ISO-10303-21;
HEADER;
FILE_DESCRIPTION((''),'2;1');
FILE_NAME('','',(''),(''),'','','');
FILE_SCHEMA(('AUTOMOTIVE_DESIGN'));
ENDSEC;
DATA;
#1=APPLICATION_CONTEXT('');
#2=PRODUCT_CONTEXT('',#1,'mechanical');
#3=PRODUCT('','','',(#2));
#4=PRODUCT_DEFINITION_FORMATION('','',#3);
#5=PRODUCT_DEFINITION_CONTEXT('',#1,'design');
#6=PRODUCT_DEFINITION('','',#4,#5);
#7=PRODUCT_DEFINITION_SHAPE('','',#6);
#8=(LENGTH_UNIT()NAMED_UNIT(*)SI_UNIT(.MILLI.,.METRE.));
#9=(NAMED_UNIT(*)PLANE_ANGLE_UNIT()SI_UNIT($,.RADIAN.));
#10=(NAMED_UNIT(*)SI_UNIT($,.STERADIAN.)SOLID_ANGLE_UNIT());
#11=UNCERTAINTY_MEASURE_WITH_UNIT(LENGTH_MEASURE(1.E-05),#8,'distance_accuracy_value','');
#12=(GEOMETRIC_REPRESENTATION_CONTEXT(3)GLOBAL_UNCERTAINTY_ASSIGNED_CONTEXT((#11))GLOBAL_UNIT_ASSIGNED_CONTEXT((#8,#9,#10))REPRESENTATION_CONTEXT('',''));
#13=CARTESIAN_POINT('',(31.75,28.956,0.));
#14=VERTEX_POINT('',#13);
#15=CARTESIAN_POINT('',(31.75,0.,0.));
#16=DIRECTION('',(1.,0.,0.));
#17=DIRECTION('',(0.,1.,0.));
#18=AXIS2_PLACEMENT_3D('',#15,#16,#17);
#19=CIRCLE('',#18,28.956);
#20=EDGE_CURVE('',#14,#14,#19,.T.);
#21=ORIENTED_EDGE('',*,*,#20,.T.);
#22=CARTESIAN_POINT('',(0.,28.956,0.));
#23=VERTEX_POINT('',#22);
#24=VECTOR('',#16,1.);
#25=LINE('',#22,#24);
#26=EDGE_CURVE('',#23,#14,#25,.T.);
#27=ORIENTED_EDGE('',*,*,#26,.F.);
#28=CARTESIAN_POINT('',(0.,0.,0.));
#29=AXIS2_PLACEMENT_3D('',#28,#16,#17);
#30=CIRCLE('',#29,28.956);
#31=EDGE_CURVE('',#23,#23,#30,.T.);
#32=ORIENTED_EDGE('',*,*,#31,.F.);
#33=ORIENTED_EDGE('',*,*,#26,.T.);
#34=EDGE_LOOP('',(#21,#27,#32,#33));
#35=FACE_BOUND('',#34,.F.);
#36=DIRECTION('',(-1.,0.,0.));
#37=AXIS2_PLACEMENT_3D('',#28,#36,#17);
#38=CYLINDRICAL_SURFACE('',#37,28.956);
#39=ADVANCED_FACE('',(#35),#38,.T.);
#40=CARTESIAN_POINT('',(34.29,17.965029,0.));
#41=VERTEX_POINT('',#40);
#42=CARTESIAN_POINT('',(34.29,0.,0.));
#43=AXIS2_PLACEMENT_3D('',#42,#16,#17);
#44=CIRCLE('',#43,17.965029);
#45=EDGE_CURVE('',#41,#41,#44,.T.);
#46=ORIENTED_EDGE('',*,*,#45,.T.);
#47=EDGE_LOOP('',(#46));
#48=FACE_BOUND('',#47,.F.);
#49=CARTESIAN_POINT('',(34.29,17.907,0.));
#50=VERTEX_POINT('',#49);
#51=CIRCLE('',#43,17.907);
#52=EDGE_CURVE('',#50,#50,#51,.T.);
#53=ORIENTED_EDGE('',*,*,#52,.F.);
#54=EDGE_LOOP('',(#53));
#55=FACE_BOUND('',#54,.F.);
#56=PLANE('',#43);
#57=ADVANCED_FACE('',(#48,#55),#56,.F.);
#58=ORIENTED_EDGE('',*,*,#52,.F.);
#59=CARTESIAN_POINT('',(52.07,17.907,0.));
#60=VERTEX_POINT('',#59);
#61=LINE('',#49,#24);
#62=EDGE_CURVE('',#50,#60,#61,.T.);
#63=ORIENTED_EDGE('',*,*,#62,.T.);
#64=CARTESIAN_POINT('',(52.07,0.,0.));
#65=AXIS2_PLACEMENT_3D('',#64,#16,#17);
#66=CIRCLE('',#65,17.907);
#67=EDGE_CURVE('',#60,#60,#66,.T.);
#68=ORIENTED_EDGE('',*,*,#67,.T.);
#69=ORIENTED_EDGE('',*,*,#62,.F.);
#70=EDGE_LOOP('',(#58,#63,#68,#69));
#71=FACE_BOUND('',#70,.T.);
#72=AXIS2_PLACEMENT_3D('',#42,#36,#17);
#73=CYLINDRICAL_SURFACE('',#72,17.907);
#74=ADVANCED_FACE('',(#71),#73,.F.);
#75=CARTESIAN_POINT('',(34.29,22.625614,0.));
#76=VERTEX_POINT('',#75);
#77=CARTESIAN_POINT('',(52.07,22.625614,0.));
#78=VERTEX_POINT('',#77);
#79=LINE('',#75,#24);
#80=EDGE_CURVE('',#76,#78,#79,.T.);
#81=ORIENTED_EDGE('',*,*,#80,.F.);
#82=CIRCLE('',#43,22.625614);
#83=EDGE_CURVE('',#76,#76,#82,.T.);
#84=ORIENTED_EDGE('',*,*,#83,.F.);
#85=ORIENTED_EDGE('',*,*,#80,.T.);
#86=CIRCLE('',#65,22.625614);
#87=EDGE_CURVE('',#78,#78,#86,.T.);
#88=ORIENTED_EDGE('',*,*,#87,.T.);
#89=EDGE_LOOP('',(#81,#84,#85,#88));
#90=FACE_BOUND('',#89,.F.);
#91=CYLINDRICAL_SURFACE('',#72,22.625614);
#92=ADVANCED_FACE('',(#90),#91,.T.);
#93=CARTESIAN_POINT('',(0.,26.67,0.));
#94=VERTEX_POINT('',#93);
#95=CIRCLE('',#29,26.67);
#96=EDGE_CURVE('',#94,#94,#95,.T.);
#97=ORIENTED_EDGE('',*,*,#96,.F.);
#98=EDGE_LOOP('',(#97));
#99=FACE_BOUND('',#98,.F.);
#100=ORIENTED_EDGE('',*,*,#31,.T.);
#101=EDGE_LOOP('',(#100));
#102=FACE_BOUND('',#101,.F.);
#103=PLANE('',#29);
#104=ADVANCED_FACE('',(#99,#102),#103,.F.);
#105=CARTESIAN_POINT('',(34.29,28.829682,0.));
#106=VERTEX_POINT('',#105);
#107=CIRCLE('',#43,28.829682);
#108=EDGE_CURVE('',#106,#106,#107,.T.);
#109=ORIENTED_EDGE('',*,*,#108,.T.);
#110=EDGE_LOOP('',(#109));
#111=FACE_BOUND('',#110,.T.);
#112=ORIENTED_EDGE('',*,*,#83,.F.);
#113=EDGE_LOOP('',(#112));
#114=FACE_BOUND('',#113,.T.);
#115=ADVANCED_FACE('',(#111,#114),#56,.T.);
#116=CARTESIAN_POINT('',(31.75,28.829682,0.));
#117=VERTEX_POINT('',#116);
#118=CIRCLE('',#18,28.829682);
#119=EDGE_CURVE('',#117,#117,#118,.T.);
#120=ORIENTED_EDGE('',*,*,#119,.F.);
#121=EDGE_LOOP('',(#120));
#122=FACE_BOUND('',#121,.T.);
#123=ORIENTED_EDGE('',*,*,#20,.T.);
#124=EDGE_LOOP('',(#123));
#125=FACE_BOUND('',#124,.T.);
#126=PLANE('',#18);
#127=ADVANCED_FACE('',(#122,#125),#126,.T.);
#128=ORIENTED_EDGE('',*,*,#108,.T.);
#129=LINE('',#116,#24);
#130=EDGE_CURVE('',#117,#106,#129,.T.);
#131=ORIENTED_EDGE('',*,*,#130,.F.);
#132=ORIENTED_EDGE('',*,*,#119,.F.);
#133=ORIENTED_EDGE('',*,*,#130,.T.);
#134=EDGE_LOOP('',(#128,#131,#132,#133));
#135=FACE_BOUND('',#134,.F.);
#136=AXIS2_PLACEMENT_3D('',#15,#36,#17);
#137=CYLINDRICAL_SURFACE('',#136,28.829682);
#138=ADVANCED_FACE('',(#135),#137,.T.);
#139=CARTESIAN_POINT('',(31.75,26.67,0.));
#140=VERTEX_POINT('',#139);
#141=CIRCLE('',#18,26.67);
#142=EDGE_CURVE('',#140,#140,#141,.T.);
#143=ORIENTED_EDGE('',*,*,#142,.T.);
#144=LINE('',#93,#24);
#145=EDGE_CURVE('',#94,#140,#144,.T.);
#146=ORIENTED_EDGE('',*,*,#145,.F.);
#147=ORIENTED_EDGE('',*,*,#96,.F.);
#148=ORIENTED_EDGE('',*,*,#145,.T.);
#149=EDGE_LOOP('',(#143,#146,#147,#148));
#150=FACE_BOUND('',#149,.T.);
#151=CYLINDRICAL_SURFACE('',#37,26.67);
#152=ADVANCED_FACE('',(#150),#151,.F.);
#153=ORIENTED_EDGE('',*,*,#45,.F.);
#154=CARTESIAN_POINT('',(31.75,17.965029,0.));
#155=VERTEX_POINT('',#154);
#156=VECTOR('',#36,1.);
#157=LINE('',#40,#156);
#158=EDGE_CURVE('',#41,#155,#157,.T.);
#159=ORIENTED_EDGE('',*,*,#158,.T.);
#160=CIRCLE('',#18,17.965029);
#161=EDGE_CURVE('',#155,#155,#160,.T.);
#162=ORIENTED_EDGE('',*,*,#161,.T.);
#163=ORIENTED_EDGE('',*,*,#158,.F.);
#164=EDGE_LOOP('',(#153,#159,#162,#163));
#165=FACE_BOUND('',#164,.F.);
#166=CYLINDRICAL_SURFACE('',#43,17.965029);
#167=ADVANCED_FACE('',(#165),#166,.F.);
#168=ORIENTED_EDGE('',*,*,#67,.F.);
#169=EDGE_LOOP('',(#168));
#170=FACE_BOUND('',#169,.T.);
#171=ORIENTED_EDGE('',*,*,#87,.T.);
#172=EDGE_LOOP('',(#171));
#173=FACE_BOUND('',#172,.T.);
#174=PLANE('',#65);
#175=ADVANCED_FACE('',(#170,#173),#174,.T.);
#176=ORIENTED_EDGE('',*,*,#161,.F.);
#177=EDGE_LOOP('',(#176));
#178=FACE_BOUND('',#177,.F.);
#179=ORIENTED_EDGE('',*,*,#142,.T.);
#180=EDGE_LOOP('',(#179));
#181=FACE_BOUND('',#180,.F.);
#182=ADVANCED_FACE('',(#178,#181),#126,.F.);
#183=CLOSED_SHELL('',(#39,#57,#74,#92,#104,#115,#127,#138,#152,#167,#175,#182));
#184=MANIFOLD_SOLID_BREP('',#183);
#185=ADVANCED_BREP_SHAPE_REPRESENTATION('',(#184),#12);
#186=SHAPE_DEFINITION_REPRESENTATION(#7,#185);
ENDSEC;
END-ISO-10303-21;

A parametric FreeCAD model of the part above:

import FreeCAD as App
import Part
import Sketcher
Q = App.Units.Quantity

doc = App.newDocument("Part")
body = doc.addObject("PartDesign::Body", "Body")

sketch1 = body.newObject("Sketcher::SketchObject", "Sketch")
sketch1.AttachmentSupport = (doc.getObject("YZ_Plane"), [""])
sketch1.MapMode = "FlatFace"
sketch1.addGeometry([
    Part.Circle(App.Vector(0, 0, 0), App.Vector(0, 0, 1), 29),
    Part.Circle(App.Vector(0, 0, 0), App.Vector(0, 0, 1), 27),
], False)
sketch1.addConstraint([
    Sketcher.Constraint("Coincident", 0, 3, -1, 1),
    Sketcher.Constraint("Coincident", 1, 3, -1, 1),
    Sketcher.Constraint("Diameter", 1, Q("2.1 in")),
    Sketcher.Constraint("Diameter", 0, Q("2.28 in")),
])
pad1 = body.newObject("PartDesign::Pad", "Pad")
pad1.Profile = sketch1
pad1.Length = Q("1.25 in")

sketch2 = body.newObject("Sketcher::SketchObject", "Sketch001")
sketch2.AttachmentSupport = (doc.getObject("YZ_Plane"), [""])
sketch2.MapMode = "FlatFace"
sketch2.AttachmentOffset = App.Placement(App.Vector(0, 0, 1.25 * 25.4), App.Rotation())
sketch2.addGeometry(Part.Circle(App.Vector(0, 0, 0), App.Vector(0, 0, 1), 29), False)
sketch2.addConstraint([
    Sketcher.Constraint("Coincident", 0, 3, -1, 1),
    Sketcher.Constraint("Diameter", 0, Q("57.659364 mm")),
])
pad2 = body.newObject("PartDesign::Pad", "Pad001")
pad2.Profile = sketch2
pad2.Length = Q("0.1 in")

sketch3 = body.newObject("Sketcher::SketchObject", "Sketch002")
sketch3.AttachmentSupport = (doc.getObject("YZ_Plane"), [""])
sketch3.MapMode = "FlatFace"
sketch3.AttachmentOffset = App.Placement(App.Vector(0, 0, 1.35 * 25.4), App.Rotation())
sketch3.addGeometry([
    Part.Circle(App.Vector(0, 0, 0), App.Vector(0, 0, 1), 23),
    Part.Circle(App.Vector(0, 0, 0), App.Vector(0, 0, 1), 18),
], False)
sketch3.addConstraint([
    Sketcher.Constraint("Coincident", 0, 3, -1, 1),
    Sketcher.Constraint("Coincident", 1, 3, -1, 1),
    Sketcher.Constraint("Diameter", 1, Q("1.41 in")),
    Sketcher.Constraint("Diameter", 0, Q("45.251228 mm")),
])
pad3 = body.newObject("PartDesign::Pad", "Pad002")
pad3.Profile = sketch3
pad3.Length = Q("0.7 in")

sketch4 = body.newObject("Sketcher::SketchObject", "Sketch003")
sketch4.AttachmentSupport = (doc.getObject("YZ_Plane"), [""])
sketch4.MapMode = "FlatFace"
sketch4.AttachmentOffset = App.Placement(App.Vector(0, 0, 1.35 * 25.4), App.Rotation())
sketch4.addGeometry(Part.Circle(App.Vector(0, 0, 0), App.Vector(0, 0, 1), 18), False)
sketch4.addConstraint([
    Sketcher.Constraint("Coincident", 0, 3, -1, 1),
    Sketcher.Constraint("Diameter", 0, Q("35.930058 mm")),
])
pocket1 = body.newObject("PartDesign::Pocket", "Pocket")
pocket1.Profile = sketch4
pocket1.Type = "ThroughAll"

doc.recompute()
